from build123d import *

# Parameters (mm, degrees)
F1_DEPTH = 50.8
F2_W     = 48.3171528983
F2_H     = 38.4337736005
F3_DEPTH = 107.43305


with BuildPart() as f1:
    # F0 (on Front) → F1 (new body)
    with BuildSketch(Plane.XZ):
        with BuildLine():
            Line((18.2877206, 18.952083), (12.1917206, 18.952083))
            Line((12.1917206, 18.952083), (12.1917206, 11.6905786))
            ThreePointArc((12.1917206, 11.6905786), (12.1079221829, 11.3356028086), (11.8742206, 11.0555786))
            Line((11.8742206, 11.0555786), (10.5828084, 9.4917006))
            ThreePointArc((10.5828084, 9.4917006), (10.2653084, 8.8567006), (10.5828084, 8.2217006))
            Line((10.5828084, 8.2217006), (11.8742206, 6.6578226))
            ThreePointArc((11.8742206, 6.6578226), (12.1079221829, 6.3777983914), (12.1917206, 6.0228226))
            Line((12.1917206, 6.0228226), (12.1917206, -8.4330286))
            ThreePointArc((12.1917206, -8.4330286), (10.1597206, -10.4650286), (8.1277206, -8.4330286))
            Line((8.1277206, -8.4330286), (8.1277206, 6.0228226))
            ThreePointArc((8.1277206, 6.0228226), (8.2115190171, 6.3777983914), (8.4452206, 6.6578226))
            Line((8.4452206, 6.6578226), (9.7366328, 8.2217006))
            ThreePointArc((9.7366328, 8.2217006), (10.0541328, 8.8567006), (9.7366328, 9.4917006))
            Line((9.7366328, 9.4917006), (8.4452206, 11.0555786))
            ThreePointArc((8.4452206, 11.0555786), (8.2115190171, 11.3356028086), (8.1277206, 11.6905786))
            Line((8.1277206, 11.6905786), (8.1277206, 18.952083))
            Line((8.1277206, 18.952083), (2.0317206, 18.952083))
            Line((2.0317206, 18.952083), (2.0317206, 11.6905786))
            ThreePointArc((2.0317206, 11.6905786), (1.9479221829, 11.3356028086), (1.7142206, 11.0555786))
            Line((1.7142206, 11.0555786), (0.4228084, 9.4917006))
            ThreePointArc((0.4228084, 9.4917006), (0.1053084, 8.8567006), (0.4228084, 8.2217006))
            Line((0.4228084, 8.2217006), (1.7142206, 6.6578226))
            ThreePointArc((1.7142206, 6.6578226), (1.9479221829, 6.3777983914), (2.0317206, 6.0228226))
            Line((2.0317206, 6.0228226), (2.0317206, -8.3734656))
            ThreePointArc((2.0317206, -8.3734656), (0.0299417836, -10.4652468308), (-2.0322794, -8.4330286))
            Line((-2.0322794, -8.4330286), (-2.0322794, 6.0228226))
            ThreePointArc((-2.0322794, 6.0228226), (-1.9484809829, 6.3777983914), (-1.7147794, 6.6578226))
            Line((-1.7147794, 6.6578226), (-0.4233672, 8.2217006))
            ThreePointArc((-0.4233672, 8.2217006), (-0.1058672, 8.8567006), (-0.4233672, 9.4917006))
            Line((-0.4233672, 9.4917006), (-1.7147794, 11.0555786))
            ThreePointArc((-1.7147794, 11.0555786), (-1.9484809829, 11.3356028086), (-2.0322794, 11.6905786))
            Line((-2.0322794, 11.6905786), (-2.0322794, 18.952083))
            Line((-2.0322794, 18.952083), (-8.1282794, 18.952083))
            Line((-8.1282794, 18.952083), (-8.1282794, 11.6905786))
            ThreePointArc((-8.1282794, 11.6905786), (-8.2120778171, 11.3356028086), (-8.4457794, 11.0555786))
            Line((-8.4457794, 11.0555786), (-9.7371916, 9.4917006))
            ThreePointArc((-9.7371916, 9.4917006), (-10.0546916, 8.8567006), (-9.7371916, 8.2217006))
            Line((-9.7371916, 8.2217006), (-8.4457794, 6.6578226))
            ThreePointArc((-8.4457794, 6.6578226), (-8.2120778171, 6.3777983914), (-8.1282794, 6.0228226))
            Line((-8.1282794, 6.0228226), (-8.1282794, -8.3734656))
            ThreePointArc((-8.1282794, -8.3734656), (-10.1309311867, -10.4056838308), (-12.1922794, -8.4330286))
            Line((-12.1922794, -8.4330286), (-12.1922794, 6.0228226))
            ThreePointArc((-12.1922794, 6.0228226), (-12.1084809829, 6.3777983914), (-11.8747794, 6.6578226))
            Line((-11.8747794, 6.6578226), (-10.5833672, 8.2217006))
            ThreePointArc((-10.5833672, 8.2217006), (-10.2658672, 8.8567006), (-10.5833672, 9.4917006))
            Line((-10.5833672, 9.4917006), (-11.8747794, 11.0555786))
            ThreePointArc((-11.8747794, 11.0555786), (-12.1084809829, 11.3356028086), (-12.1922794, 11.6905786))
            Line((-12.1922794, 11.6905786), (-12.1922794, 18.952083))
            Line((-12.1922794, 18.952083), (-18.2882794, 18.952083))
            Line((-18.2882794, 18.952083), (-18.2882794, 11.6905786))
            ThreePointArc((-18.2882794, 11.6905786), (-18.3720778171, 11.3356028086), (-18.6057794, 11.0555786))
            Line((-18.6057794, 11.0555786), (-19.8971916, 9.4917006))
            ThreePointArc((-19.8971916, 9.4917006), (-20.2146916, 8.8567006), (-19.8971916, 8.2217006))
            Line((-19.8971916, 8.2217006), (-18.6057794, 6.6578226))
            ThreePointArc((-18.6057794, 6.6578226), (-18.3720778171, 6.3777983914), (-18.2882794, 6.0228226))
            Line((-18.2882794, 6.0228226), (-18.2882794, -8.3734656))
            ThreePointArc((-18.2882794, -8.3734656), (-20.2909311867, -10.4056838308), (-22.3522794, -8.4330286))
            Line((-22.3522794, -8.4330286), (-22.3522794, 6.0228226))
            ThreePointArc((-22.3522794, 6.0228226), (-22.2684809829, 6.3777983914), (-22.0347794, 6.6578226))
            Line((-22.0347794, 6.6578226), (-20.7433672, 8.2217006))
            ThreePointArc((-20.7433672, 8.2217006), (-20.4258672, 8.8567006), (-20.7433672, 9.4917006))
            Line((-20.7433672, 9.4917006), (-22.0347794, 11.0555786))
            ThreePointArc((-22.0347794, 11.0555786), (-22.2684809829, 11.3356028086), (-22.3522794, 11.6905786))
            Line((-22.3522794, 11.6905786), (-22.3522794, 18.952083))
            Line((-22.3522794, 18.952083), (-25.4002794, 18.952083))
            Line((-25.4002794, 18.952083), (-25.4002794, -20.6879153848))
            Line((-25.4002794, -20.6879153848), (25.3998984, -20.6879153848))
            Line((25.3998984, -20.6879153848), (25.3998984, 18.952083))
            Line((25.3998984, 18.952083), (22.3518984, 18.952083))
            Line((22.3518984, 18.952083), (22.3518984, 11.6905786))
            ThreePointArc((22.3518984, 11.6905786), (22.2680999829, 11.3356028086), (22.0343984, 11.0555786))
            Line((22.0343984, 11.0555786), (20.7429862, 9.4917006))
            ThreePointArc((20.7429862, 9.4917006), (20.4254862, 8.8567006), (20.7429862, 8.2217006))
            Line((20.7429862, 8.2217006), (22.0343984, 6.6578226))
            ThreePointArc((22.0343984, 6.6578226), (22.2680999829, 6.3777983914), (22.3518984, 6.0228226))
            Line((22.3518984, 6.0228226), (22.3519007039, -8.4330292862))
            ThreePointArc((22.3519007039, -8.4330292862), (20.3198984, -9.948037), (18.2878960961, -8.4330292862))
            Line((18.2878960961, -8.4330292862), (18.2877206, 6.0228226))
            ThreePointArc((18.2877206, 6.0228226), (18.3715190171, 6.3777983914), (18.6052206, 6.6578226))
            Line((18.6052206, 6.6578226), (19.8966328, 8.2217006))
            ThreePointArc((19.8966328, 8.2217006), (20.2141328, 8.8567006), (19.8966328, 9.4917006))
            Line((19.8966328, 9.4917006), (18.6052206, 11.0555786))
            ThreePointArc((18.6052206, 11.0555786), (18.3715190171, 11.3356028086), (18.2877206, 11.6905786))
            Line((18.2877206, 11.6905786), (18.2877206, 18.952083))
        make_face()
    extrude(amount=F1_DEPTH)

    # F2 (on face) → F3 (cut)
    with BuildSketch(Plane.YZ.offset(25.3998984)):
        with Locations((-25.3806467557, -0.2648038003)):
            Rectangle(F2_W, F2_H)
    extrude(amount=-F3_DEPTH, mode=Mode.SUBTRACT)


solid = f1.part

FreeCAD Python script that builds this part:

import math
import FreeCAD as App
import Part
import Sketcher
from FreeCAD import Vector
Q = App.Units.Quantity

doc = App.newDocument("Part")
body = doc.addObject("PartDesign::Body", "Body")

sketch1 = body.newObject("Sketcher::SketchObject", "Sketch")
sketch1.AttachmentSupport = (doc.getObject("XZ_Plane"), [""])
sketch1.MapMode = "FlatFace"
sketch1.addGeometry([
    Part.LineSegment(Vector(18.3, 19, 0), Vector(12.2, 19, 0)),
    Part.LineSegment(Vector(12.2, 19, 0), Vector(12.2, 11.7, 0)),
    Part.ArcOfCircle(Part.Circle(Vector(11.4, 11.7, 0), Vector(0, 0, 1), 0.8), math.radians(-53), math.radians(0)),
    Part.LineSegment(Vector(11.9, 11.1, 0), Vector(10.6, 9.5, 0)),
    Part.ArcOfCircle(Part.Circle(Vector(11.1, 8.9, 0), Vector(0, 0, 1), 0.8), math.radians(127), math.radians(233)),
    Part.LineSegment(Vector(10.6, 8.2, 0), Vector(11.9, 6.7, 0)),
    Part.ArcOfCircle(Part.Circle(Vector(11.4, 6, 0), Vector(0, 0, 1), 0.8), math.radians(0), math.radians(53)),
    Part.LineSegment(Vector(12.2, 6, 0), Vector(12.2, -8.4, 0)),
    Part.ArcOfCircle(Part.Circle(Vector(10.2, -8.4, 0), Vector(0, 0, 1), 2), math.radians(180), math.radians(360)),
    Part.LineSegment(Vector(8.1, -8.4, 0), Vector(8.1, 6, 0)),
    Part.ArcOfCircle(Part.Circle(Vector(8.9, 6, 0), Vector(0, 0, 1), 0.8), math.radians(127), math.radians(180)),
    Part.LineSegment(Vector(8.4, 6.7, 0), Vector(9.7, 8.2, 0)),
    Part.ArcOfCircle(Part.Circle(Vector(9.3, 8.9, 0), Vector(0, 0, 1), 0.8), math.radians(-53), math.radians(53)),
    Part.LineSegment(Vector(9.7, 9.5, 0), Vector(8.4, 11.1, 0)),
    Part.ArcOfCircle(Part.Circle(Vector(8.9, 11.7, 0), Vector(0, 0, 1), 0.8), math.radians(180), math.radians(233)),
    Part.LineSegment(Vector(8.1, 11.7, 0), Vector(8.1, 19, 0)),
    Part.LineSegment(Vector(8.1, 19, 0), Vector(2, 19, 0)),
    Part.LineSegment(Vector(2, 19, 0), Vector(2, 11.7, 0)),
    Part.ArcOfCircle(Part.Circle(Vector(1.2, 11.7, 0), Vector(0, 0, 1), 0.8), math.radians(-53), math.radians(0)),
    Part.LineSegment(Vector(1.7, 11.1, 0), Vector(0.4, 9.5, 0)),
    Part.ArcOfCircle(Part.Circle(Vector(0.9, 8.9, 0), Vector(0, 0, 1), 0.8), math.radians(127), math.radians(233)),
    Part.LineSegment(Vector(0.4, 8.2, 0), Vector(1.7, 6.7, 0)),
    Part.ArcOfCircle(Part.Circle(Vector(1.2, 6, 0), Vector(0, 0, 1), 0.8), math.radians(0), math.radians(53)),
    Part.LineSegment(Vector(2, 6, 0), Vector(2, -8.4, 0)),
    Part.ArcOfCircle(Part.Circle(Vector(0, -8.4, 0), Vector(0, 0, 1), 2), math.radians(180), math.radians(362)),
    Part.LineSegment(Vector(-2, -8.4, 0), Vector(-2, 6, 0)),
    Part.ArcOfCircle(Part.Circle(Vector(-1.2, 6, 0), Vector(0, 0, 1), 0.8), math.radians(127), math.radians(180)),
    Part.LineSegment(Vector(-1.7, 6.7, 0), Vector(-0.4, 8.2, 0)),
    Part.ArcOfCircle(Part.Circle(Vector(-0.9, 8.9, 0), Vector(0, 0, 1), 0.8), math.radians(-53), math.radians(53)),
    Part.LineSegment(Vector(-0.4, 9.5, 0), Vector(-1.7, 11.1, 0)),
    Part.ArcOfCircle(Part.Circle(Vector(-1.2, 11.7, 0), Vector(0, 0, 1), 0.8), math.radians(180), math.radians(233)),
    Part.LineSegment(Vector(-2, 11.7, 0), Vector(-2, 19, 0)),
    Part.LineSegment(Vector(-2, 19, 0), Vector(-8.1, 19, 0)),
    Part.LineSegment(Vector(-8.1, 19, 0), Vector(-8.1, 11.7, 0)),
    Part.ArcOfCircle(Part.Circle(Vector(-8.9, 11.7, 0), Vector(0, 0, 1), 0.8), math.radians(-53), math.radians(0)),
    Part.LineSegment(Vector(-8.4, 11.1, 0), Vector(-9.7, 9.5, 0)),
    Part.ArcOfCircle(Part.Circle(Vector(-9.3, 8.9, 0), Vector(0, 0, 1), 0.8), math.radians(127), math.radians(233)),
    Part.LineSegment(Vector(-9.7, 8.2, 0), Vector(-8.4, 6.7, 0)),
    Part.ArcOfCircle(Part.Circle(Vector(-8.9, 6, 0), Vector(0, 0, 1), 0.8), math.radians(0), math.radians(53)),
    Part.LineSegment(Vector(-8.1, 6, 0), Vector(-8.1, -8.4, 0)),
    Part.ArcOfCircle(Part.Circle(Vector(-10.2, -8.4, 0), Vector(0, 0, 1), 2), math.radians(-178), math.radians(0)),
    Part.LineSegment(Vector(-12.2, -8.4, 0), Vector(-12.2, 6, 0)),
    Part.ArcOfCircle(Part.Circle(Vector(-11.4, 6, 0), Vector(0, 0, 1), 0.8), math.radians(127), math.radians(180)),
    Part.LineSegment(Vector(-11.9, 6.7, 0), Vector(-10.6, 8.2, 0)),
    Part.ArcOfCircle(Part.Circle(Vector(-11.1, 8.9, 0), Vector(0, 0, 1), 0.8), math.radians(-53), math.radians(53)),
    Part.LineSegment(Vector(-10.6, 9.5, 0), Vector(-11.9, 11.1, 0)),
    Part.ArcOfCircle(Part.Circle(Vector(-11.4, 11.7, 0), Vector(0, 0, 1), 0.8), math.radians(180), math.radians(233)),
    Part.LineSegment(Vector(-12.2, 11.7, 0), Vector(-12.2, 19, 0)),
    Part.LineSegment(Vector(-12.2, 19, 0), Vector(-18.3, 19, 0)),
    Part.LineSegment(Vector(-18.3, 19, 0), Vector(-18.3, 11.7, 0)),
    Part.ArcOfCircle(Part.Circle(Vector(-19.1, 11.7, 0), Vector(0, 0, 1), 0.8), math.radians(-53), math.radians(0)),
    Part.LineSegment(Vector(-18.6, 11.1, 0), Vector(-19.9, 9.5, 0)),
    Part.ArcOfCircle(Part.Circle(Vector(-19.4, 8.9, 0), Vector(0, 0, 1), 0.8), math.radians(127), math.radians(233)),
    Part.LineSegment(Vector(-19.9, 8.2, 0), Vector(-18.6, 6.7, 0)),
    Part.ArcOfCircle(Part.Circle(Vector(-19.1, 6, 0), Vector(0, 0, 1), 0.8), math.radians(0), math.radians(53)),
    Part.LineSegment(Vector(-18.3, 6, 0), Vector(-18.3, -8.4, 0)),
    Part.ArcOfCircle(Part.Circle(Vector(-20.3, -8.4, 0), Vector(0, 0, 1), 2), math.radians(-178), math.radians(0)),
    Part.LineSegment(Vector(-22.4, -8.4, 0), Vector(-22.4, 6, 0)),
    Part.ArcOfCircle(Part.Circle(Vector(-21.6, 6, 0), Vector(0, 0, 1), 0.8), math.radians(127), math.radians(180)),
    Part.LineSegment(Vector(-22, 6.7, 0), Vector(-20.7, 8.2, 0)),
    Part.ArcOfCircle(Part.Circle(Vector(-21.2, 8.9, 0), Vector(0, 0, 1), 0.8), math.radians(-53), math.radians(53)),
    Part.LineSegment(Vector(-20.7, 9.5, 0), Vector(-22, 11.1, 0)),
    Part.ArcOfCircle(Part.Circle(Vector(-21.6, 11.7, 0), Vector(0, 0, 1), 0.8), math.radians(180), math.radians(233)),
    Part.LineSegment(Vector(-22.4, 11.7, 0), Vector(-22.4, 19, 0)),
    Part.LineSegment(Vector(-22.4, 19, 0), Vector(-25.4, 19, 0)),
    Part.LineSegment(Vector(-25.4, 19, 0), Vector(-25.4, -20.7, 0)),
    Part.LineSegment(Vector(-25.4, -20.7, 0), Vector(25.4, -20.7, 0)),
    Part.LineSegment(Vector(25.4, -20.7, 0), Vector(25.4, 19, 0)),
    Part.LineSegment(Vector(25.4, 19, 0), Vector(22.4, 19, 0)),
    Part.LineSegment(Vector(22.4, 19, 0), Vector(22.4, 11.7, 0)),
    Part.ArcOfCircle(Part.Circle(Vector(21.6, 11.7, 0), Vector(0, 0, 1), 0.8), math.radians(-53), math.radians(0)),
    Part.LineSegment(Vector(22, 11.1, 0), Vector(20.7, 9.5, 0)),
    Part.ArcOfCircle(Part.Circle(Vector(21.2, 8.9, 0), Vector(0, 0, 1), 0.8), math.radians(127), math.radians(233)),
    Part.LineSegment(Vector(20.7, 8.2, 0), Vector(22, 6.7, 0)),
    Part.ArcOfCircle(Part.Circle(Vector(21.6, 6, 0), Vector(0, 0, 1), 0.8), math.radians(0), math.radians(53)),
    Part.LineSegment(Vector(22.4, 6, 0), Vector(22.4, -8.4, 0)),
    Part.ArcOfCircle(Part.Circle(Vector(20.3, -7.8, 0), Vector(0, 0, 1), 2.1), math.radians(-163), math.radians(-17)),
    Part.LineSegment(Vector(18.3, -8.4, 0), Vector(18.3, 6, 0)),
    Part.ArcOfCircle(Part.Circle(Vector(19.1, 6, 0), Vector(0, 0, 1), 0.8), math.radians(127), math.radians(180)),
    Part.LineSegment(Vector(18.6, 6.7, 0), Vector(19.9, 8.2, 0)),
    Part.ArcOfCircle(Part.Circle(Vector(19.4, 8.9, 0), Vector(0, 0, 1), 0.8), math.radians(-53), math.radians(53)),
    Part.LineSegment(Vector(19.9, 9.5, 0), Vector(18.6, 11.1, 0)),
    Part.ArcOfCircle(Part.Circle(Vector(19.1, 11.7, 0), Vector(0, 0, 1), 0.8), math.radians(180), math.radians(233)),
    Part.LineSegment(Vector(18.3, 11.7, 0), Vector(18.3, 19, 0)),
], False)
sketch1.addConstraint([
    Sketcher.Constraint("Coincident", 0, 2, 1, 1),
    Sketcher.Constraint("Tangent", 1, 2, 2, 2),
    Sketcher.Constraint("Coincident", 2, 1, 3, 1),
    Sketcher.Constraint("Coincident", 3, 2, 4, 1),
    Sketcher.Constraint("Coincident", 4, 2, 5, 1),
    Sketcher.Constraint("Coincident", 5, 2, 6, 2),
    Sketcher.Constraint("Tangent", 6, 1, 7, 1),
    Sketcher.Constraint("Tangent", 7, 2, 8, 2),
    Sketcher.Constraint("Tangent", 8, 1, 9, 1),
    Sketcher.Constraint("Tangent", 9, 2, 10, 2),
    Sketcher.Constraint("Coincident", 10, 1, 11, 1),
    Sketcher.Constraint("Coincident", 11, 2, 12, 1),
    Sketcher.Constraint("Coincident", 12, 2, 13, 1),
    Sketcher.Constraint("Coincident", 13, 2, 14, 2),
    Sketcher.Constraint("Tangent", 14, 1, 15, 1),
    Sketcher.Constraint("Coincident", 15, 2, 16, 1),
    Sketcher.Constraint("Coincident", 16, 2, 17, 1),
    Sketcher.Constraint("Tangent", 17, 2, 18, 2),
    Sketcher.Constraint("Coincident", 18, 1, 19, 1),
    Sketcher.Constraint("Coincident", 19, 2, 20, 1),
    Sketcher.Constraint("Coincident", 20, 2, 21, 1),
    Sketcher.Constraint("Coincident", 21, 2, 22, 2),
    Sketcher.Constraint("Tangent", 22, 1, 23, 1),
    Sketcher.Constraint("Coincident", 23, 2, 24, 2),
    Sketcher.Constraint("Tangent", 24, 1, 25, 1),
    Sketcher.Constraint("Tangent", 25, 2, 26, 2),
    Sketcher.Constraint("Coincident", 26, 1, 27, 1),
    Sketcher.Constraint("Coincident", 27, 2, 28, 1),
    Sketcher.Constraint("Coincident", 28, 2, 29, 1),
    Sketcher.Constraint("Coincident", 29, 2, 30, 2),
    Sketcher.Constraint("Tangent", 30, 1, 31, 1),
    Sketcher.Constraint("Coincident", 31, 2, 32, 1),
    Sketcher.Constraint("Coincident", 32, 2, 33, 1),
    Sketcher.Constraint("Tangent", 33, 2, 34, 2),
    Sketcher.Constraint("Coincident", 34, 1, 35, 1),
    Sketcher.Constraint("Coincident", 35, 2, 36, 1),
    Sketcher.Constraint("Coincident", 36, 2, 37, 1),
    Sketcher.Constraint("Coincident", 37, 2, 38, 2),
    Sketcher.Constraint("Tangent", 38, 1, 39, 1),
    Sketcher.Constraint("Tangent", 39, 2, 40, 2),
    Sketcher.Constraint("Coincident", 40, 1, 41, 1),
    Sketcher.Constraint("Tangent", 41, 2, 42, 2),
    Sketcher.Constraint("Coincident", 42, 1, 43, 1),
    Sketcher.Constraint("Coincident", 43, 2, 44, 1),
    Sketcher.Constraint("Coincident", 44, 2, 45, 1),
    Sketcher.Constraint("Coincident", 45, 2, 46, 2),
    Sketcher.Constraint("Tangent", 46, 1, 47, 1),
    Sketcher.Constraint("Coincident", 47, 2, 48, 1),
    Sketcher.Constraint("Coincident", 48, 2, 49, 1),
    Sketcher.Constraint("Tangent", 49, 2, 50, 2),
    Sketcher.Constraint("Coincident", 50, 1, 51, 1),
    Sketcher.Constraint("Coincident", 51, 2, 52, 1),
    Sketcher.Constraint("Coincident", 52, 2, 53, 1),
    Sketcher.Constraint("Coincident", 53, 2, 54, 2),
    Sketcher.Constraint("Tangent", 54, 1, 55, 1),
    Sketcher.Constraint("Tangent", 55, 2, 56, 2),
    Sketcher.Constraint("Coincident", 56, 1, 57, 1),
    Sketcher.Constraint("Tangent", 57, 2, 58, 2),
    Sketcher.Constraint("Coincident", 58, 1, 59, 1),
    Sketcher.Constraint("Coincident", 59, 2, 60, 1),
    Sketcher.Constraint("Coincident", 60, 2, 61, 1),
    Sketcher.Constraint("Coincident", 61, 2, 62, 2),
    Sketcher.Constraint("Tangent", 62, 1, 63, 1),
    Sketcher.Constraint("Coincident", 63, 2, 64, 1),
    Sketcher.Constraint("Coincident", 64, 2, 65, 1),
    Sketcher.Constraint("Coincident", 65, 2, 66, 1),
    Sketcher.Constraint("Coincident", 66, 2, 67, 1),
    Sketcher.Constraint("Coincident", 67, 2, 68, 1),
    Sketcher.Constraint("Coincident", 68, 2, 69, 1),
    Sketcher.Constraint("Tangent", 69, 2, 70, 2),
    Sketcher.Constraint("Coincident", 70, 1, 71, 1),
    Sketcher.Constraint("Coincident", 71, 2, 72, 1),
    Sketcher.Constraint("Coincident", 72, 2, 73, 1),
    Sketcher.Constraint("Coincident", 73, 2, 74, 2),
    Sketcher.Constraint("Tangent", 74, 1, 75, 1),
    Sketcher.Constraint("Coincident", 75, 2, 76, 2),
    Sketcher.Constraint("Coincident", 76, 1, 77, 1),
    Sketcher.Constraint("Coincident", 77, 2, 78, 2),
    Sketcher.Constraint("Coincident", 78, 1, 79, 1),
    Sketcher.Constraint("Coincident", 79, 2, 80, 1),
    Sketcher.Constraint("Coincident", 80, 2, 81, 1),
    Sketcher.Constraint("Coincident", 81, 2, 82, 2),
    Sketcher.Constraint("Tangent", 82, 1, 83, 1),
    Sketcher.Constraint("Coincident", 83, 2, 0, 1),
    Sketcher.Constraint("Horizontal", 0),
    Sketcher.Constraint("Vertical", 1),
    Sketcher.Constraint("Vertical", 7),
    Sketcher.Constraint("Vertical", 9),
    Sketcher.Constraint("Vertical", 15),
    Sketcher.Constraint("Horizontal", 16),
    Sketcher.Constraint("Vertical", 17),
    Sketcher.Constraint("Vertical", 23),
    Sketcher.Constraint("Vertical", 25),
    Sketcher.Constraint("Vertical", 31),
    Sketcher.Constraint("Horizontal", 32),
    Sketcher.Constraint("Vertical", 33),
    Sketcher.Constraint("Vertical", 39),
    Sketcher.Constraint("Vertical", 41),
    Sketcher.Constraint("Vertical", 47),
    Sketcher.Constraint("Horizontal", 48),
    Sketcher.Constraint("Vertical", 49),
    Sketcher.Constraint("Vertical", 55),
    Sketcher.Constraint("Vertical", 57),
    Sketcher.Constraint("Vertical", 63),
    Sketcher.Constraint("Horizontal", 64),
    Sketcher.Constraint("Vertical", 65),
    Sketcher.Constraint("Horizontal", 66),
    Sketcher.Constraint("Vertical", 67),
    Sketcher.Constraint("Horizontal", 68),
    Sketcher.Constraint("Vertical", 69),
    Sketcher.Constraint("Vertical", 83),
    Sketcher.Constraint("Equal", 2, 4),
    Sketcher.Constraint("Equal", 4, 6),
    Sketcher.Constraint("Equal", 6, 10),
    Sketcher.Constraint("Equal", 10, 12),
    Sketcher.Constraint("Equal", 12, 14),
    Sketcher.Constraint("Equal", 14, 18),
    Sketcher.Constraint("Equal", 18, 20),
    Sketcher.Constraint("Equal", 20, 22),
    Sketcher.Constraint("Equal", 22, 26),
    Sketcher.Constraint("Equal", 26, 28),
    Sketcher.Constraint("Equal", 28, 30),
    Sketcher.Constraint("Equal", 30, 34),
    Sketcher.Constraint("Equal", 34, 36),
    Sketcher.Constraint("Equal", 36, 38),
    Sketcher.Constraint("Equal", 24, 40),
    Sketcher.Constraint("Equal", 38, 42),
    Sketcher.Constraint("Equal", 42, 44),
    Sketcher.Constraint("Equal", 44, 46),
    Sketcher.Constraint("Equal", 46, 50),
    Sketcher.Constraint("Equal", 50, 52),
    Sketcher.Constraint("Equal", 52, 54),
    Sketcher.Constraint("Equal", 40, 56),
    Sketcher.Constraint("Equal", 54, 58),
    Sketcher.Constraint("Equal", 58, 60),
    Sketcher.Constraint("Equal", 60, 62),
    Sketcher.Constraint("Equal", 62, 70),
    Sketcher.Constraint("Equal", 70, 72),
    Sketcher.Constraint("Equal", 72, 74),
    Sketcher.Constraint("Equal", 74, 78),
    Sketcher.Constraint("Equal", 78, 80),
    Sketcher.Constraint("Equal", 80, 82),
    Sketcher.Constraint("Parallel", 3, 11),
    Sketcher.Constraint("Parallel", 5, 13),
    Sketcher.Constraint("Parallel", 11, 19),
    Sketcher.Constraint("Parallel", 13, 21),
    Sketcher.Constraint("Parallel", 19, 27),
    Sketcher.Constraint("Parallel", 21, 29),
    Sketcher.Constraint("Parallel", 27, 35),
    Sketcher.Constraint("Parallel", 29, 37),
    Sketcher.Constraint("Parallel", 35, 43),
    Sketcher.Constraint("Parallel", 37, 45),
    Sketcher.Constraint("Parallel", 43, 51),
    Sketcher.Constraint("Parallel", 45, 53),
    Sketcher.Constraint("Parallel", 51, 59),
    Sketcher.Constraint("Parallel", 53, 61),
    Sketcher.Constraint("Parallel", 59, 71),
    Sketcher.Constraint("Parallel", 61, 73),
    Sketcher.Constraint("Parallel", 71, 79),
    Sketcher.Constraint("Parallel", 73, 81),
    Sketcher.Constraint("Horizontal", 6, 3, 10, 3),
    Sketcher.Constraint("Horizontal", 4, 3, 12, 3),
    Sketcher.Constraint("Horizontal", 2, 3, 14, 3),
    Sketcher.Constraint("Horizontal", 14, 3, 18, 3),
    Sketcher.Constraint("Horizontal", 12, 3, 20, 3),
    Sketcher.Constraint("Horizontal", 10, 3, 22, 3),
    Sketcher.Constraint("Horizontal", 8, 3, 24, 3),
    Sketcher.Constraint("Horizontal", 22, 3, 26, 3),
    Sketcher.Constraint("Horizontal", 20, 3, 28, 3),
    Sketcher.Constraint("Horizontal", 18, 3, 30, 3),
    Sketcher.Constraint("Horizontal", 30, 3, 34, 3),
    Sketcher.Constraint("Horizontal", 28, 3, 36, 3),
    Sketcher.Constraint("Horizontal", 26, 3, 38, 3),
    Sketcher.Constraint("Horizontal", 38, 3, 42, 3),
    Sketcher.Constraint("Horizontal", 36, 3, 44, 3),
    Sketcher.Constraint("Horizontal", 34, 3, 46, 3),
    Sketcher.Constraint("Horizontal", 46, 3, 50, 3),
    Sketcher.Constraint("Horizontal", 44, 3, 52, 3),
    Sketcher.Constraint("Horizontal", 42, 3, 54, 3),
    Sketcher.Constraint("Horizontal", 40, 3, 56, 3),
    Sketcher.Constraint("Horizontal", 54, 3, 58, 3),
    Sketcher.Constraint("Horizontal", 52, 3, 60, 3),
    Sketcher.Constraint("Horizontal", 50, 3, 62, 3),
    Sketcher.Constraint("Horizontal", 62, 3, 70, 3),
    Sketcher.Constraint("Horizontal", 60, 3, 72, 3),
    Sketcher.Constraint("Horizontal", 58, 3, 74, 3),
    Sketcher.Constraint("Horizontal", 74, 3, 78, 3),
    Sketcher.Constraint("Horizontal", 72, 3, 80, 3),
    Sketcher.Constraint("Horizontal", 70, 3, 82, 3),
    Sketcher.Constraint("Horizontal", 5, 2, 10, 1),
    Sketcher.Constraint("Horizontal", 4, 2, 11, 2),
    Sketcher.Constraint("Horizontal", 3, 2, 12, 2),
    Sketcher.Constraint("Horizontal", 2, 1, 13, 2),
    Sketcher.Constraint("Horizontal", 0, 2, 15, 2),
    Sketcher.Constraint("Horizontal", 13, 2, 18, 1),
    Sketcher.Constraint("Horizontal", 12, 2, 19, 2),
    Sketcher.Constraint("Horizontal", 11, 2, 20, 2),
    Sketcher.Constraint("Horizontal", 10, 1, 21, 2),
    Sketcher.Constraint("Horizontal", 56, 3, 23, 2),
    Sketcher.Constraint("Horizontal", 21, 2, 26, 1),
    Sketcher.Constraint("Horizontal", 20, 2, 27, 2),
    Sketcher.Constraint("Horizontal", 19, 2, 28, 2),
    Sketcher.Constraint("Horizontal", 18, 1, 29, 2),
    Sketcher.Constraint("Horizontal", 16, 2, 31, 2),
    Sketcher.Constraint("Horizontal", 29, 2, 34, 1),
    Sketcher.Constraint("Horizontal", 28, 2, 35, 2),
    Sketcher.Constraint("Horizontal", 27, 2, 36, 2),
    Sketcher.Constraint("Horizontal", 26, 1, 37, 2),
    Sketcher.Constraint("Horizontal", 24, 1, 40, 1),
    Sketcher.Constraint("Horizontal", 37, 2, 42, 1),
    Sketcher.Constraint("Horizontal", 36, 2, 43, 2),
    Sketcher.Constraint("Horizontal", 35, 2, 44, 2),
    Sketcher.Constraint("Horizontal", 34, 1, 45, 2),
    Sketcher.Constraint("Horizontal", 32, 2, 47, 2),
    Sketcher.Constraint("Horizontal", 45, 2, 50, 1),
    Sketcher.Constraint("Horizontal", 44, 2, 51, 2),
    Sketcher.Constraint("Horizontal", 43, 2, 52, 2),
    Sketcher.Constraint("Horizontal", 42, 1, 53, 2),
    Sketcher.Constraint("Horizontal", 40, 1, 56, 1),
    Sketcher.Constraint("Horizontal", 53, 2, 58, 1),
    Sketcher.Constraint("Horizontal", 52, 2, 59, 2),
    Sketcher.Constraint("Horizontal", 51, 2, 60, 2),
    Sketcher.Constraint("Horizontal", 50, 1, 61, 2),
    Sketcher.Constraint("Horizontal", 48, 2, 63, 2),
    Sketcher.Constraint("Horizontal", 64, 2, 67, 2),
    Sketcher.Constraint("Horizontal", 61, 2, 70, 1),
    Sketcher.Constraint("Horizontal", 60, 2, 71, 2),
    Sketcher.Constraint("Horizontal", 59, 2, 72, 2),
    Sketcher.Constraint("Horizontal", 58, 1, 73, 2),
    Sketcher.Constraint("Horizontal", 57, 2, 74, 1),
    Sketcher.Constraint("Horizontal", 56, 1, 75, 2),
    Sketcher.Constraint("Horizontal", 75, 2, 76, 1),
    Sketcher.Constraint("Horizontal", 74, 1, 77, 2),
    Sketcher.Constraint("Horizontal", 73, 2, 78, 1),
    Sketcher.Constraint("Horizontal", 72, 2, 79, 2),
    Sketcher.Constraint("Horizontal", 71, 2, 80, 2),
    Sketcher.Constraint("Horizontal", 70, 1, 81, 2),
    Sketcher.Constraint("Vertical", 2, 3, 6, 3),
    Sketcher.Constraint("Vertical", 10, 3, 14, 3),
    Sketcher.Constraint("Vertical", 3, 2, 4, 2),
    Sketcher.Constraint("Vertical", 2, 1, 5, 2),
    Sketcher.Constraint("Equal", 0, 16),
    Sketcher.Constraint("Equal", 16, 32),
    Sketcher.Constraint("Equal", 32, 48),
    Sketcher.Constraint("Equal", 64, 68),
    Sketcher.Constraint("Radius", 8, Q("0.08 in")),
    Sketcher.Constraint("Radius", 2, Q("0.03125 in")),
    Sketcher.Constraint("DistanceX", 0, 2, 0, 1, Q("0.24 in")),
    Sketcher.Constraint("DistanceX", 64, 2, 64, 1, Q("0.12 in")),
    Sketcher.Constraint("DistanceY", 65, 2, 65, 1, 39.639998),
    Sketcher.Constraint("Radius", 24, 2.032436),
    Sketcher.Constraint("Radius", 76, 2.120214),
    Sketcher.Constraint("DistanceY", 7, 2, 7, 1, 14.455851),
    Sketcher.Constraint("DistanceY", 23, 2, 23, 1, 14.396288),
    Sketcher.Constraint("DistanceY", -1, 1, 4, 3, 8.856701),
    Sketcher.Constraint("DistanceX", -1, 1, 76, 3, 20.319898),
    Sketcher.Constraint("DistanceY", -1, 1, 3, 2, 9.491701),
    Sketcher.Constraint("DistanceX", -1, 1, 66, 2, 25.399898),
    Sketcher.Constraint("DistanceX", -1, 1, 70, 1, 22.034398),
    Sketcher.Constraint("DistanceX", 66, 1, 66, 2, 50.800178),
    Sketcher.Constraint("DistanceY", 1, 2, 1, 1, 7.261504),
    Sketcher.Constraint("DistanceY", -1, 1, 2, 3, 11.690579),
    Sketcher.Constraint("DistanceX", -1, 1, 4, 3, 11.059058),
])
pad1 = body.newObject("PartDesign::Pad", "Pad")
pad1.Profile = sketch1
pad1.Length = Q("2 in")

sketch2 = body.newObject("Sketcher::SketchObject", "Sketch001")
sketch2.AttachmentSupport = (doc.getObject("YZ_Plane"), [""])
sketch2.MapMode = "FlatFace"
sketch2.AttachmentOffset = App.Placement(Vector(0, 0, 25.399898), App.Rotation())
sketch2.addGeometry([
    Part.LineSegment(Vector(-50, 19, 0), Vector(-50, -19, 0)),
    Part.LineSegment(Vector(-50, -19, 0), Vector(-1, -19, 0)),
    Part.LineSegment(Vector(-1, -19, 0), Vector(-1, 19, 0)),
    Part.LineSegment(Vector(-1, 19, 0), Vector(-50, 19, 0)),
], False)
sketch2.addConstraint([
    Sketcher.Constraint("Coincident", 0, 2, 1, 1),
    Sketcher.Constraint("Coincident", 1, 2, 2, 1),
    Sketcher.Constraint("Coincident", 2, 2, 3, 1),
    Sketcher.Constraint("Coincident", 3, 2, 0, 1),
    Sketcher.Constraint("Vertical", 0),
    Sketcher.Constraint("Horizontal", 1),
    Sketcher.Constraint("Vertical", 2),
    Sketcher.Constraint("Horizontal", 3),
    Sketcher.Constraint("DistanceX", 1, 1, 1, 2, 48.317153),
    Sketcher.Constraint("DistanceY", 0, 2, 0, 1, 38.433774),
    Sketcher.Constraint("DistanceY", 0, 2, -1, 1, 19.481691),
    Sketcher.Constraint("DistanceX", 1, 2, -1, 1, 1.22207),
])
pocket1 = body.newObject("PartDesign::Pocket", "Pocket")
pocket1.Profile = sketch2
pocket1.Length = 107.43305

doc.recompute()
